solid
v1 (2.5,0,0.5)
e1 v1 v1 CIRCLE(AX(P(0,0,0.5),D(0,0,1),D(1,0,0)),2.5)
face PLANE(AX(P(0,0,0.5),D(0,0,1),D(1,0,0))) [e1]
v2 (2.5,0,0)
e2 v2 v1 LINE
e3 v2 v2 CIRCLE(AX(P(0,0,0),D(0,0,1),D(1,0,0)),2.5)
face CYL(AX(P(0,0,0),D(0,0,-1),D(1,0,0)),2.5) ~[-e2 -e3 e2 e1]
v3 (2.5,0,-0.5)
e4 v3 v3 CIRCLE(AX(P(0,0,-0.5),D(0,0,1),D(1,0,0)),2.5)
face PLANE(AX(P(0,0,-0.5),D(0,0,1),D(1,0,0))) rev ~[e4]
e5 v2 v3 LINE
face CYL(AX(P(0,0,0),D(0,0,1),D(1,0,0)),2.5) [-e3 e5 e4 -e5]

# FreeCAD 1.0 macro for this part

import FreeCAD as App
import Part
import Sketcher
from FreeCAD import Vector
Q = App.Units.Quantity

doc = App.newDocument("Part")
params = doc.addObject("Spreadsheet::Sheet", "Params")
for row, (alias, value) in enumerate([
    ("sketch1_diameter", "5 mm"),
    ("pad1_length", "1 mm"),
], start=1):
    params.set(f"A{row}", alias)
    params.set(f"B{row}", "=" + value)
    params.setAlias(f"B{row}", alias)

body = doc.addObject("PartDesign::Body", "Body")

sketch1 = body.newObject("Sketcher::SketchObject", "Sketch")
sketch1.AttachmentSupport = (doc.getObject("XY_Plane"), [""])
sketch1.MapMode = "FlatFace"
sketch1.addGeometry(Part.Circle(Vector(0, 0, 0), Vector(0, 0, 1), 2.5), False)
sketch1.addConstraint(Sketcher.Constraint("Coincident", 0, 3, -1, 1))
sketch1.addConstraint(Sketcher.Constraint("Diameter", 0, Q("5 mm")))
sketch1.setExpression("Constraints[1]", "Params.sketch1_diameter")
pad1 = body.newObject("PartDesign::Pad", "Pad")
pad1.Profile = sketch1
pad1.setExpression("Length", "Params.pad1_length")
pad1.Midplane = True

doc.recompute()
